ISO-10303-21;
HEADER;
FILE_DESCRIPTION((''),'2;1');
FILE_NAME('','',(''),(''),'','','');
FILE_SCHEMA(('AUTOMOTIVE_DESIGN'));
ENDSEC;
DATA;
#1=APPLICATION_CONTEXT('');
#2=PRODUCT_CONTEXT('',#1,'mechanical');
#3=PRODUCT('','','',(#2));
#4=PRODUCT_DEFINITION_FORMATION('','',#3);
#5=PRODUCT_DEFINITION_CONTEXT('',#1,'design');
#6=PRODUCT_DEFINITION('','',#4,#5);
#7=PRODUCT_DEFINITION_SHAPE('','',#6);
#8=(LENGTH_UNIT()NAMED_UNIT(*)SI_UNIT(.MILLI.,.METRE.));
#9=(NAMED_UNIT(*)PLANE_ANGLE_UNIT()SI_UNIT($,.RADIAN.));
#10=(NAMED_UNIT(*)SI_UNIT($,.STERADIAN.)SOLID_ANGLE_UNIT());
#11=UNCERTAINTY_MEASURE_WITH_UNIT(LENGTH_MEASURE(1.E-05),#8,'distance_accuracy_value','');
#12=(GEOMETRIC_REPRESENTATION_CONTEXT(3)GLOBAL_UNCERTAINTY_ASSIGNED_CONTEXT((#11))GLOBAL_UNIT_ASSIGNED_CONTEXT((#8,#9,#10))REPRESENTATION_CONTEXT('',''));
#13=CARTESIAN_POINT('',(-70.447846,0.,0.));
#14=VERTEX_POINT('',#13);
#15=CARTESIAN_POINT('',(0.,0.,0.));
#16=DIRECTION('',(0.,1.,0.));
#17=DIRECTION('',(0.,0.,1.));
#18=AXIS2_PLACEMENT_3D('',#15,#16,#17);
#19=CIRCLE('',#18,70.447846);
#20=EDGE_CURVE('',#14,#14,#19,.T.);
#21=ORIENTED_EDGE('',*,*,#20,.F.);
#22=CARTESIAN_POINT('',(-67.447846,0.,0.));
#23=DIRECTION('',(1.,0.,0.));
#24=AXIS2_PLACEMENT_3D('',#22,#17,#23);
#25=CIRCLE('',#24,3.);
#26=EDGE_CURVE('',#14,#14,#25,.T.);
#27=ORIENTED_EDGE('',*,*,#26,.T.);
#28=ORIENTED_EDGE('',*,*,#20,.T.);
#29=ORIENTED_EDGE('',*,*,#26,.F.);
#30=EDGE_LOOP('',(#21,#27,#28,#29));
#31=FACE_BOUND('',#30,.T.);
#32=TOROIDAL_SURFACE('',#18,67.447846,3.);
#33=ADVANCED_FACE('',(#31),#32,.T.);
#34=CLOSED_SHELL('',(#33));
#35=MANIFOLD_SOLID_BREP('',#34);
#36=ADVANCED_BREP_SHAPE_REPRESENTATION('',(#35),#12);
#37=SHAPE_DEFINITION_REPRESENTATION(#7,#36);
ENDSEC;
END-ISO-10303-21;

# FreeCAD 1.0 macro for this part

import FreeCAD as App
import Part
import Sketcher

doc = App.newDocument("Part")
body = doc.addObject("PartDesign::Body", "Body")

sketch1 = body.newObject("Sketcher::SketchObject", "Sketch")
sketch1.AttachmentSupport = (doc.getObject("XY_Plane"), [""])
sketch1.MapMode = "FlatFace"
sketch1.addGeometry(Part.Circle(App.Vector(-67.4, 0, 0), App.Vector(0, 0, 1), 3), False)
sketch1.addConstraint([
    Sketcher.Constraint("PointOnObject", 0, 3, -1),
    Sketcher.Constraint("Diameter", 0, 6.0),
    Sketcher.Constraint("DistanceX", 0, 3, -1, 1, 67.447846),
])

sketch2 = body.newObject("Sketcher::SketchObject", "Sketch001")
sketch2.AttachmentSupport = (doc.getObject("XZ_Plane"), [""])
sketch2.MapMode = "FlatFace"
sketch2.addGeometry(Part.Circle(App.Vector(0, 0, 0), App.Vector(0, 0, 1), 67), False)
sketch2.addConstraint([
    Sketcher.Constraint("Coincident", 0, 3, -1, 1),
    Sketcher.Constraint("Diameter", 0, 134.895692),
])
doc.recompute()

additivepipe = body.newObject("PartDesign::AdditivePipe", "AdditivePipe")
additivepipe.Profile = sketch1
additivepipe.Spine = (sketch2, ["Edge1"])

doc.recompute()
